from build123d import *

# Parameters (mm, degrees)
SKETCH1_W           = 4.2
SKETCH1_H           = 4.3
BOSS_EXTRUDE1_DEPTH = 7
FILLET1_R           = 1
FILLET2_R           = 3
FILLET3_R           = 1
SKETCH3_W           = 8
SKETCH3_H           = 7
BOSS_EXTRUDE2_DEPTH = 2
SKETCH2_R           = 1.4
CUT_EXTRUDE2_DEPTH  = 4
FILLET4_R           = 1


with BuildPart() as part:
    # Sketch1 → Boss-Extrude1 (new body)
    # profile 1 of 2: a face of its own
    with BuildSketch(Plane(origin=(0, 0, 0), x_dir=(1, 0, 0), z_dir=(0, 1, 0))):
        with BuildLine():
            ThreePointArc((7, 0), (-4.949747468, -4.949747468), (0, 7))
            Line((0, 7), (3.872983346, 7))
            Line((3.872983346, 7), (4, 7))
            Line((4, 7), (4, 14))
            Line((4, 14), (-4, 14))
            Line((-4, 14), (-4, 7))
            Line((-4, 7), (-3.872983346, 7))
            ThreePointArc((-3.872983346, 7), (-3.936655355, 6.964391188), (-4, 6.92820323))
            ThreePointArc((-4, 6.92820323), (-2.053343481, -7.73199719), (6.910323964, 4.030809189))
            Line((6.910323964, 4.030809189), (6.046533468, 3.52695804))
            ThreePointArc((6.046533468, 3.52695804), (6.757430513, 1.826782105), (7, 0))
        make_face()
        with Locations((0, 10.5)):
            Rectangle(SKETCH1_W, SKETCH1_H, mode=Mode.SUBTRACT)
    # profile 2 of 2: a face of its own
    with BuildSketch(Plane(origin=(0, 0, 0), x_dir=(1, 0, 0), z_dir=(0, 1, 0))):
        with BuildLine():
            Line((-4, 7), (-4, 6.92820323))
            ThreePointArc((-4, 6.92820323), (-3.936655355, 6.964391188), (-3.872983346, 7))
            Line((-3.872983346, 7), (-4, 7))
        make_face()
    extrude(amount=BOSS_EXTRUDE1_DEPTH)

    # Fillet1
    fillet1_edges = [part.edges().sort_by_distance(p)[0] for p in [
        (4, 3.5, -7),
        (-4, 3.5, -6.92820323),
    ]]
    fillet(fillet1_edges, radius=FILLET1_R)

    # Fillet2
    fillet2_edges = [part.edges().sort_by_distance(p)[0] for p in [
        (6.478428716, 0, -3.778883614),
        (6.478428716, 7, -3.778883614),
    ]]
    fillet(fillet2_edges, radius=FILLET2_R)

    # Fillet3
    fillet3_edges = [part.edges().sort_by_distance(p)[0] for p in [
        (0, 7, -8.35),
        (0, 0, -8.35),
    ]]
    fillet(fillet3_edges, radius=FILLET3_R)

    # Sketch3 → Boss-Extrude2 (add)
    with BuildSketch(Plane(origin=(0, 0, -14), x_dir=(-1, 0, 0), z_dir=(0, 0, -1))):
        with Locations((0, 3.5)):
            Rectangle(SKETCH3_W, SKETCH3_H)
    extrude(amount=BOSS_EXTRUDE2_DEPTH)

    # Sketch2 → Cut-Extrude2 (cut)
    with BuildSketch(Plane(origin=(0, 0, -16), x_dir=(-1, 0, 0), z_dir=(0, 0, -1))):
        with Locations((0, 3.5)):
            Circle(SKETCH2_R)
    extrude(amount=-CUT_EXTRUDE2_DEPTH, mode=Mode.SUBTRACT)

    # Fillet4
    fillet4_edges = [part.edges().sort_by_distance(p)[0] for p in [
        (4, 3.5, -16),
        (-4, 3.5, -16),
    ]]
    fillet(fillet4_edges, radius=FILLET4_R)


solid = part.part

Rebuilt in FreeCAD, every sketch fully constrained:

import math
import FreeCAD as App
import Part
import Sketcher
from FreeCAD import Vector


def edges_at(feature, points):
    """Names of the edges that pass closest to the given points."""
    edges = feature.Shape.Edges
    near = lambda p: min(range(len(edges)), key=lambda i: edges[i].distToShape(Part.Vertex(*p))[0])
    return sorted({f"Edge{near(p) + 1}" for p in points})


def add_polygon(sketch, points):
    """Adds a closed chain of lines whose ends are joined by coincident constraints."""
    first, n = sketch.GeometryCount, len(points)
    for a, b in zip(points, points[1:] + points[:1]):
        sketch.addGeometry(Part.LineSegment(App.Vector(*a, 0), App.Vector(*b, 0)), False)
    for i in range(n):
        sketch.addConstraint(Sketcher.Constraint("Coincident", first + i, 2, first + (i + 1) % n, 1))

doc = App.newDocument("Part")
body = doc.addObject("PartDesign::Body", "Body")

sketch1 = body.newObject("Sketcher::SketchObject", "Sketch")
sketch1.AttachmentSupport = (doc.getObject("XZ_Plane"), [""])
sketch1.MapMode = "FlatFace"
sketch1.addGeometry(Part.ArcOfCircle(Part.Circle(Vector(0, 0, 0), Vector(0, 0, 1), 7), math.radians(0), math.radians(270)), False)
sketch1.addGeometry(Part.LineSegment(Vector(0, -7, 0), Vector(4, -7, 0)), False)
sketch1.addGeometry(Part.LineSegment(Vector(4, -7, 0), Vector(4, -14, 0)), False)
sketch1.addGeometry(Part.LineSegment(Vector(4, -14, 0), Vector(-4, -14, 0)), False)
sketch1.addGeometry(Part.LineSegment(Vector(-4, -14, 0), Vector(-4, -6.9, 0)), False)
sketch1.addGeometry(Part.ArcOfCircle(Part.Circle(Vector(0, 0, 0), Vector(0, 0, 1), 8), math.radians(-30), math.radians(240)), False)
sketch1.addGeometry(Part.LineSegment(Vector(6.9, -4, 0), Vector(6, -3.5, 0)), False)
sketch1.addGeometry(Part.ArcOfCircle(Part.Circle(Vector(0, 0, 0), Vector(0, 0, 1), 7), math.radians(-30), math.radians(0)), False)
add_polygon(sketch1, [(2.1, -8.3), (-2.1, -8.3), (-2.1, -12.7), (2.1, -12.7)])
sketch1.addConstraint([
    Sketcher.Constraint("Tangent", 0, 2, 1, 1),
    Sketcher.Constraint("Coincident", 1, 2, 2, 1),
    Sketcher.Constraint("Coincident", 2, 2, 3, 1),
    Sketcher.Constraint("Coincident", 3, 2, 4, 1),
    Sketcher.Constraint("Coincident", 4, 2, 5, 2),
    Sketcher.Constraint("Coincident", 5, 1, 6, 1),
    Sketcher.Constraint("Coincident", 6, 2, 7, 1),
    Sketcher.Constraint("Tangent", 7, 2, 0, 1),
    Sketcher.Constraint("Horizontal", 1),
    Sketcher.Constraint("Vertical", 2),
    Sketcher.Constraint("Horizontal", 3),
    Sketcher.Constraint("Vertical", 4),
    Sketcher.Constraint("Horizontal", 8),
    Sketcher.Constraint("Vertical", 9),
    Sketcher.Constraint("Horizontal", 10),
    Sketcher.Constraint("Vertical", 11),
    Sketcher.Constraint("Coincident", 0, 3, -1, 1),
    Sketcher.Constraint("Coincident", 5, 3, -1, 1),
    Sketcher.Constraint("Equal", 0, 7),
    Sketcher.Constraint("PointOnObject", 7, 2, -1),
    Sketcher.Constraint("Radius", 0, 7.0),
    Sketcher.Constraint("Radius", 5, 8.0),
    Sketcher.Constraint("DistanceX", 1, 1, 1, 2, 4.0),
    Sketcher.Constraint("DistanceX", 3, 2, 3, 1, 8.0),
    Sketcher.Constraint("DistanceY", 2, 2, 2, 1, 7.0),
    Sketcher.Constraint("DistanceX", 8, 2, 8, 1, 4.2),
    Sketcher.Constraint("DistanceY", 9, 2, 9, 1, 4.3),
    Sketcher.Constraint("DistanceX", 8, 2, -1, 1, 2.1),
    Sketcher.Constraint("DistanceY", 8, 2, -1, 1, 8.35),
    Sketcher.Constraint("DistanceY", 5, 1, -1, 1, 4.030809),
    Sketcher.Constraint("DistanceY", 6, 2, -1, 1, 3.526958),
])
pad1 = body.newObject("PartDesign::Pad", "Pad")
pad1.Profile = sketch1
pad1.Length = 7
pad1.Reversed = True
doc.recompute()

fillet = body.newObject("PartDesign::Fillet", "Fillet")
fillet.Base = (pad1, edges_at(pad1, [(4, 3.5, -7), (-4, 3.5, -6.928)]))
fillet.Radius = 1
doc.recompute()

fillet2 = body.newObject("PartDesign::Fillet", "Fillet001")
fillet2.Base = (fillet, edges_at(fillet, [(6.478, 0, -3.779), (6.478, 7, -3.779)]))
fillet2.Radius = 3
doc.recompute()

fillet3 = body.newObject("PartDesign::Fillet", "Fillet002")
fillet3.Base = (fillet2, edges_at(fillet2, [(0, 7, -8.35), (0, 0, -8.35)]))
fillet3.Radius = 1

sketch2 = body.newObject("Sketcher::SketchObject", "Sketch001")
sketch2.AttachmentSupport = (doc.getObject("XY_Plane"), [""])
sketch2.MapMode = "FlatFace"
sketch2.AttachmentOffset = App.Placement(Vector(0, 0, -14), App.Rotation())
add_polygon(sketch2, [(4, 7), (4, 0), (-4, 0), (-4, 7)])
sketch2.addConstraint([
    Sketcher.Constraint("Vertical", 0),
    Sketcher.Constraint("Horizontal", 1),
    Sketcher.Constraint("Vertical", 2),
    Sketcher.Constraint("Horizontal", 3),
    Sketcher.Constraint("Symmetric", 0, 2, 1, 2, -1, 1),
    Sketcher.Constraint("DistanceX", 1, 2, 1, 1, 8.0),
    Sketcher.Constraint("DistanceY", 0, 2, 0, 1, 7.0),
])
pad2 = body.newObject("PartDesign::Pad", "Pad001")
pad2.Profile = sketch2
pad2.Length = 2
pad2.Reversed = True

sketch3 = body.newObject("Sketcher::SketchObject", "Sketch002")
sketch3.AttachmentSupport = (doc.getObject("XY_Plane"), [""])
sketch3.MapMode = "FlatFace"
sketch3.AttachmentOffset = App.Placement(Vector(0, 0, -16), App.Rotation())
sketch3.addGeometry(Part.Circle(Vector(0, 3.5, 0), Vector(0, 0, 1), 1.4), False)
sketch3.addConstraint([
    Sketcher.Constraint("PointOnObject", 0, 3, -2),
    Sketcher.Constraint("Diameter", 0, 2.8),
    Sketcher.Constraint("DistanceY", -1, 1, 0, 3, 3.5),
])
pocket1 = body.newObject("PartDesign::Pocket", "Pocket")
pocket1.Profile = sketch3
pocket1.Length = 4
pocket1.Reversed = True
doc.recompute()

fillet4 = body.newObject("PartDesign::Fillet", "Fillet003")
fillet4.Base = (pocket1, edges_at(pocket1, [(4, 3.5, -16), (-4, 3.5, -16)]))
fillet4.Radius = 1

doc.recompute()
